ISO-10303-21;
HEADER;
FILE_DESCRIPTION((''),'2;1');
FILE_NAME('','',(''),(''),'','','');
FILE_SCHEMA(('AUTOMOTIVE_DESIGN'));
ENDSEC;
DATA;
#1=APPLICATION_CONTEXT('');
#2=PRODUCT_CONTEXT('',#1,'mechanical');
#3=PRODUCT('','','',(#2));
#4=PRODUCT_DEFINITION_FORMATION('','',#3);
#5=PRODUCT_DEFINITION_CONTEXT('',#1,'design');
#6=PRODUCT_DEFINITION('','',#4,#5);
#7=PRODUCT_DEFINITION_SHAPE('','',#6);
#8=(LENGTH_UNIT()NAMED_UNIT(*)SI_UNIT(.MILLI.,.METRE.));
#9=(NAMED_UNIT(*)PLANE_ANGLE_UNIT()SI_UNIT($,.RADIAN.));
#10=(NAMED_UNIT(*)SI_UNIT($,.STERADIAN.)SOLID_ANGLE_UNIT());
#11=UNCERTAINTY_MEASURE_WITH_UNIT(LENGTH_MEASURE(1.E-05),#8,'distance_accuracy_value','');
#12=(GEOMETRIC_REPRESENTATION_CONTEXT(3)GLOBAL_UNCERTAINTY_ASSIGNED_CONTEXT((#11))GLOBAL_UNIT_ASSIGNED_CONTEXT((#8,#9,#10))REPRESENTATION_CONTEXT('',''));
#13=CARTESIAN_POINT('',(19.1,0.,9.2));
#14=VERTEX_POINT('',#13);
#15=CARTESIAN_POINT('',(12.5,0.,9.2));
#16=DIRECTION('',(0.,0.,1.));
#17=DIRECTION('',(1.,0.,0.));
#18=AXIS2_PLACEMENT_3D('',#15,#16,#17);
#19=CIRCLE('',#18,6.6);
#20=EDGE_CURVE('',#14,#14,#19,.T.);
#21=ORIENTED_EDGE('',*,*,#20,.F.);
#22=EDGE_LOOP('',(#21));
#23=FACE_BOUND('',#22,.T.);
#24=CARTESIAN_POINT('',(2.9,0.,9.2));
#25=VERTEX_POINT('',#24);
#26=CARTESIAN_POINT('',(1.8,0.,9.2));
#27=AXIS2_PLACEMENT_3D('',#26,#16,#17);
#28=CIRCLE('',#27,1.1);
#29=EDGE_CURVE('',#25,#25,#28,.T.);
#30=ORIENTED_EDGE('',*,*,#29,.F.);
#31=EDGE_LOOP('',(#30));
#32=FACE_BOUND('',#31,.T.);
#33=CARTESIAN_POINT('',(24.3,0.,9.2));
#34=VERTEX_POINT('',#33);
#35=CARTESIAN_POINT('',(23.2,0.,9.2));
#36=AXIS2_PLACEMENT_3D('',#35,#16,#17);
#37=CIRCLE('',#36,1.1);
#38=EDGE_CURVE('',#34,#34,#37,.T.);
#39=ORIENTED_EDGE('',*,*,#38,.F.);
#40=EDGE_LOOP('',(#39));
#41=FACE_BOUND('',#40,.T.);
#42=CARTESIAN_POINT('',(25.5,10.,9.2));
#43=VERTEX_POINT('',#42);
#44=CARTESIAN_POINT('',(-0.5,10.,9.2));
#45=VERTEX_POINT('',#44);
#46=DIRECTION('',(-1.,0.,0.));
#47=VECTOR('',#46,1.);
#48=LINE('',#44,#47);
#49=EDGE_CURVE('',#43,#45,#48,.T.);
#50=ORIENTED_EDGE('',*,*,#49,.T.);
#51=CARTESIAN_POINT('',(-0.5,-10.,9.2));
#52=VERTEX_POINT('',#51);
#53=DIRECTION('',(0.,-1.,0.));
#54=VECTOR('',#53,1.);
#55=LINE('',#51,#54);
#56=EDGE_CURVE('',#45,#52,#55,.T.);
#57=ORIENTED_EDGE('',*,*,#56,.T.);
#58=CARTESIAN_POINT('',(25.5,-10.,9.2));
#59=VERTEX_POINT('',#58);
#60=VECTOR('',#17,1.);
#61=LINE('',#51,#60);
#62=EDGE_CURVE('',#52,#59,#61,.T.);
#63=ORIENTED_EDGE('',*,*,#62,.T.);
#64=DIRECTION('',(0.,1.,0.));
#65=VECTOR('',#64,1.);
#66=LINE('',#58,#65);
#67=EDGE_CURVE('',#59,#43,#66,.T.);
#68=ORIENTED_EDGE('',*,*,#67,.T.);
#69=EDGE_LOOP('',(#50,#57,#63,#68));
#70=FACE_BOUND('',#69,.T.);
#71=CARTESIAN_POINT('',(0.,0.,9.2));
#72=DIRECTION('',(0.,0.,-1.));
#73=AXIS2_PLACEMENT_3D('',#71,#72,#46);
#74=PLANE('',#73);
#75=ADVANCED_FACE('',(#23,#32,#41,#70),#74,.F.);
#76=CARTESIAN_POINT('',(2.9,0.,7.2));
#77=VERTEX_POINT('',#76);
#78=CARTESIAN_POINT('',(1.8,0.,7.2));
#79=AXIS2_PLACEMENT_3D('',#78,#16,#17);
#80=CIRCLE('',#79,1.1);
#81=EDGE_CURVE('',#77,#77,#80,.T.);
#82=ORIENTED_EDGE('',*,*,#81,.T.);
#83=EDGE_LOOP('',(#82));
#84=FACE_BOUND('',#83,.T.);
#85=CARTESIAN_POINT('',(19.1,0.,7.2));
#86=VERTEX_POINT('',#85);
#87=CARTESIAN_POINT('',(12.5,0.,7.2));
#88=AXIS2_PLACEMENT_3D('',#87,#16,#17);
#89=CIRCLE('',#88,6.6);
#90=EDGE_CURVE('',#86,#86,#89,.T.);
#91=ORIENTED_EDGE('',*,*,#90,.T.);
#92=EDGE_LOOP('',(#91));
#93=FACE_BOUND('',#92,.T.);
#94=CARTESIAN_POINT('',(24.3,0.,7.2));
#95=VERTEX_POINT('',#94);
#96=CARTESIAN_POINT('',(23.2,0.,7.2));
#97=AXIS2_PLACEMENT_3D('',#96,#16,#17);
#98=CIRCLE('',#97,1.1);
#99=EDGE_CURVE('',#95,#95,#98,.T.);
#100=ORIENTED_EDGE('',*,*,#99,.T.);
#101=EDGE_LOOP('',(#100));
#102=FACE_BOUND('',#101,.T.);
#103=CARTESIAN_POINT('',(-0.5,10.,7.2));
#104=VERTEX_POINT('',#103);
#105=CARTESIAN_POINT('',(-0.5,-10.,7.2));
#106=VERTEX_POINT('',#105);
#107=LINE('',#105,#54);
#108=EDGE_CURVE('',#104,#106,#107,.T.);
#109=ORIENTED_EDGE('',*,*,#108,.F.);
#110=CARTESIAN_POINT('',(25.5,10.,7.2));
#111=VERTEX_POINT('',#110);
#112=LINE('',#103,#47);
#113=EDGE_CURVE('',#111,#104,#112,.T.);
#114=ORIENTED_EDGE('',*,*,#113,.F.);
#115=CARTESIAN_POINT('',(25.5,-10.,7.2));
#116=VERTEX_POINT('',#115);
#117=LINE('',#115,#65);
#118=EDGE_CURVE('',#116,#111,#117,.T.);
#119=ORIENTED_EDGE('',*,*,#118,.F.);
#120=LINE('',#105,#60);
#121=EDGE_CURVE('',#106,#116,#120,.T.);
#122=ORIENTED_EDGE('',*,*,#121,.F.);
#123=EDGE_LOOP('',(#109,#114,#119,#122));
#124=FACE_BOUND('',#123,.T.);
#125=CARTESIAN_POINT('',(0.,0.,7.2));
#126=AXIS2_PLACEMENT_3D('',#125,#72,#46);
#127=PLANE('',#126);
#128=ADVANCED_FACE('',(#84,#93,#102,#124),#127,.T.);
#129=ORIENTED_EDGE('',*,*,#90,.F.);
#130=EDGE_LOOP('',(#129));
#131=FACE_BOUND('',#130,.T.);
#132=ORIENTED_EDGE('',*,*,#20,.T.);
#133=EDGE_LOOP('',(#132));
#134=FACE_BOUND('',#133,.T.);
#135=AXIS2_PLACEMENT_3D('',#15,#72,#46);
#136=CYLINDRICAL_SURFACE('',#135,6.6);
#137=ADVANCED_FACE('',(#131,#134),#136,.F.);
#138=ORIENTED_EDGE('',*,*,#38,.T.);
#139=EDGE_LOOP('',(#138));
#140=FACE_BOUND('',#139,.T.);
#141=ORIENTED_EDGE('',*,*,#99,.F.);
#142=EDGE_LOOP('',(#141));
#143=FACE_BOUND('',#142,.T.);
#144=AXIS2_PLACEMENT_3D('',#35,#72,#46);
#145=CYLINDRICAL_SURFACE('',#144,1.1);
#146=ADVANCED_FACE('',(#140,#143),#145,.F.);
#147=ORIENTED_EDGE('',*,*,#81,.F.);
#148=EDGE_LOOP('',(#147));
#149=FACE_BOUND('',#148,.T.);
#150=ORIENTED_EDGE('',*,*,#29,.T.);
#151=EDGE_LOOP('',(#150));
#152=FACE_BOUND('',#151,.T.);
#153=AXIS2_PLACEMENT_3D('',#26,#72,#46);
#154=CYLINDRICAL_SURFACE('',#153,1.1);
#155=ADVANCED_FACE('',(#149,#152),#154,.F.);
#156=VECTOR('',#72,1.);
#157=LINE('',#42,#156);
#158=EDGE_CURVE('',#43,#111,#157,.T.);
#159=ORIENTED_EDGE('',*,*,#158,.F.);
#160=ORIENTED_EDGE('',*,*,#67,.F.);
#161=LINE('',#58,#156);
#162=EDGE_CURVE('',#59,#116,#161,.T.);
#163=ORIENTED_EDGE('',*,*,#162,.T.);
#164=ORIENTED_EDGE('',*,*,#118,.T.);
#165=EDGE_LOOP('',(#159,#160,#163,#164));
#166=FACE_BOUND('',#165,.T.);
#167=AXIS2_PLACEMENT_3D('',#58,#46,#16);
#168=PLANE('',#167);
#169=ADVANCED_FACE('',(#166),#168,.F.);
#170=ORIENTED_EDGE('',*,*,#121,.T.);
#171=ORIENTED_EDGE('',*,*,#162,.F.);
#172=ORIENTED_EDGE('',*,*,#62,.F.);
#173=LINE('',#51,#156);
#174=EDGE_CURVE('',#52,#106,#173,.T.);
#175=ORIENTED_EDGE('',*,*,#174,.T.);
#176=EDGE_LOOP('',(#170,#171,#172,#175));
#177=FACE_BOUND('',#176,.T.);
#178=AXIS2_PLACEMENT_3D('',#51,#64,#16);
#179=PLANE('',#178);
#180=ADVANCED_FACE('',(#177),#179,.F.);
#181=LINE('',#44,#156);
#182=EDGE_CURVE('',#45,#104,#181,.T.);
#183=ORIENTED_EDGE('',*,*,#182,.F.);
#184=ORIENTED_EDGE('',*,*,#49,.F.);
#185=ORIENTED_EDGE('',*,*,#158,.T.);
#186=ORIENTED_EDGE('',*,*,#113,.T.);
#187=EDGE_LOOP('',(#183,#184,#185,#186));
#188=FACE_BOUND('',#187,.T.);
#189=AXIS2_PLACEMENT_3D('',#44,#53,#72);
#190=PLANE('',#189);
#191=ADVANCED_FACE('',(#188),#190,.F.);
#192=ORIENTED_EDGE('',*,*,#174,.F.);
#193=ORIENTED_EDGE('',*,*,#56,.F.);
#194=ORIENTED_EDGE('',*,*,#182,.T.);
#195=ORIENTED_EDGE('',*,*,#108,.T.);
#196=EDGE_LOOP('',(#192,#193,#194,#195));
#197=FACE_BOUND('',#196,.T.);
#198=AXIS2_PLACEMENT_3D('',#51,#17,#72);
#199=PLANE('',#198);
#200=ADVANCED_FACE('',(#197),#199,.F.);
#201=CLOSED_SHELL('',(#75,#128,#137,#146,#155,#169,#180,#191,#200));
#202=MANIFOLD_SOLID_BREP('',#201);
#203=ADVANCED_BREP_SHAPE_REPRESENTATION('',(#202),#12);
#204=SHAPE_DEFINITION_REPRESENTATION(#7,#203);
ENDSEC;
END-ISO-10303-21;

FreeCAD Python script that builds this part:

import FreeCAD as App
import Part
import Sketcher
from FreeCAD import Vector

doc = App.newDocument("Part")
body = doc.addObject("PartDesign::Body", "Body")

sketch1 = doc.addObject("Sketcher::SketchObject", "Sketch")
body.addObject(sketch1)
sketch1.AttachmentSupport = (doc.XY_Plane, [""])
sketch1.MapMode = "FlatFace"
sketch1.AttachmentOffset = App.Placement(Vector(0, 0, 7.2), App.Rotation())
sketch1.addGeometry(Part.LineSegment(Vector(-0.5, 10, 0), Vector(-0.5, -10, 0)), False)
sketch1.addGeometry(Part.LineSegment(Vector(-0.5, -10, 0), Vector(25.5, -10, 0)), False)
sketch1.addGeometry(Part.LineSegment(Vector(25.5, -10, 0), Vector(25.5, 10, 0)), False)
sketch1.addGeometry(Part.LineSegment(Vector(25.5, 10, 0), Vector(-0.5, 10, 0)), False)
sketch1.addGeometry(Part.Circle(Vector(1.8, 0, 0), Vector(0, 0, 1), 1.1), False)
sketch1.addGeometry(Part.Circle(Vector(12.5, 0, 0), Vector(0, 0, 1), 6.6), False)
sketch1.addGeometry(Part.Circle(Vector(23.2, 0, 0), Vector(0, 0, 1), 1.1), False)
sketch1.addConstraint(Sketcher.Constraint("Coincident", 0, 2, 1, 1))
sketch1.addConstraint(Sketcher.Constraint("Coincident", 1, 2, 2, 1))
sketch1.addConstraint(Sketcher.Constraint("Coincident", 2, 2, 3, 1))
sketch1.addConstraint(Sketcher.Constraint("Coincident", 3, 2, 0, 1))
sketch1.addConstraint(Sketcher.Constraint("Vertical", 0))
sketch1.addConstraint(Sketcher.Constraint("Horizontal", 1))
sketch1.addConstraint(Sketcher.Constraint("Vertical", 2))
sketch1.addConstraint(Sketcher.Constraint("Horizontal", 3))
sketch1.addConstraint(Sketcher.Constraint("Equal", 4, 6))
sketch1.addConstraint(Sketcher.Constraint("PointOnObject", 4, 3, -1))
sketch1.addConstraint(Sketcher.Constraint("PointOnObject", 5, 3, -1))
sketch1.addConstraint(Sketcher.Constraint("PointOnObject", 6, 3, -1))
sketch1.addConstraint(Sketcher.Constraint("Diameter", 4, 2.2))
sketch1.addConstraint(Sketcher.Constraint("Diameter", 5, 13.2))
sketch1.addConstraint(Sketcher.Constraint("DistanceX", 1, 1, 1, 2, 26.0))
sketch1.addConstraint(Sketcher.Constraint("DistanceY", 0, 2, 0, 1, 20.0))
sketch1.addConstraint(Sketcher.Constraint("DistanceY", 0, 2, -1, 1, 10.0))
sketch1.addConstraint(Sketcher.Constraint("DistanceX", 0, 2, 5, 3, 13.0))
sketch1.addConstraint(Sketcher.Constraint("DistanceX", -1, 1, 4, 3, 1.8))
sketch1.addConstraint(Sketcher.Constraint("DistanceX", -1, 1, 5, 3, 12.5))
sketch1.addConstraint(Sketcher.Constraint("DistanceX", -1, 1, 6, 3, 23.2))
pad1 = doc.addObject("PartDesign::Pad", "Pad")
body.addObject(pad1)
pad1.Profile = sketch1
pad1.Length = 2

doc.recompute()
